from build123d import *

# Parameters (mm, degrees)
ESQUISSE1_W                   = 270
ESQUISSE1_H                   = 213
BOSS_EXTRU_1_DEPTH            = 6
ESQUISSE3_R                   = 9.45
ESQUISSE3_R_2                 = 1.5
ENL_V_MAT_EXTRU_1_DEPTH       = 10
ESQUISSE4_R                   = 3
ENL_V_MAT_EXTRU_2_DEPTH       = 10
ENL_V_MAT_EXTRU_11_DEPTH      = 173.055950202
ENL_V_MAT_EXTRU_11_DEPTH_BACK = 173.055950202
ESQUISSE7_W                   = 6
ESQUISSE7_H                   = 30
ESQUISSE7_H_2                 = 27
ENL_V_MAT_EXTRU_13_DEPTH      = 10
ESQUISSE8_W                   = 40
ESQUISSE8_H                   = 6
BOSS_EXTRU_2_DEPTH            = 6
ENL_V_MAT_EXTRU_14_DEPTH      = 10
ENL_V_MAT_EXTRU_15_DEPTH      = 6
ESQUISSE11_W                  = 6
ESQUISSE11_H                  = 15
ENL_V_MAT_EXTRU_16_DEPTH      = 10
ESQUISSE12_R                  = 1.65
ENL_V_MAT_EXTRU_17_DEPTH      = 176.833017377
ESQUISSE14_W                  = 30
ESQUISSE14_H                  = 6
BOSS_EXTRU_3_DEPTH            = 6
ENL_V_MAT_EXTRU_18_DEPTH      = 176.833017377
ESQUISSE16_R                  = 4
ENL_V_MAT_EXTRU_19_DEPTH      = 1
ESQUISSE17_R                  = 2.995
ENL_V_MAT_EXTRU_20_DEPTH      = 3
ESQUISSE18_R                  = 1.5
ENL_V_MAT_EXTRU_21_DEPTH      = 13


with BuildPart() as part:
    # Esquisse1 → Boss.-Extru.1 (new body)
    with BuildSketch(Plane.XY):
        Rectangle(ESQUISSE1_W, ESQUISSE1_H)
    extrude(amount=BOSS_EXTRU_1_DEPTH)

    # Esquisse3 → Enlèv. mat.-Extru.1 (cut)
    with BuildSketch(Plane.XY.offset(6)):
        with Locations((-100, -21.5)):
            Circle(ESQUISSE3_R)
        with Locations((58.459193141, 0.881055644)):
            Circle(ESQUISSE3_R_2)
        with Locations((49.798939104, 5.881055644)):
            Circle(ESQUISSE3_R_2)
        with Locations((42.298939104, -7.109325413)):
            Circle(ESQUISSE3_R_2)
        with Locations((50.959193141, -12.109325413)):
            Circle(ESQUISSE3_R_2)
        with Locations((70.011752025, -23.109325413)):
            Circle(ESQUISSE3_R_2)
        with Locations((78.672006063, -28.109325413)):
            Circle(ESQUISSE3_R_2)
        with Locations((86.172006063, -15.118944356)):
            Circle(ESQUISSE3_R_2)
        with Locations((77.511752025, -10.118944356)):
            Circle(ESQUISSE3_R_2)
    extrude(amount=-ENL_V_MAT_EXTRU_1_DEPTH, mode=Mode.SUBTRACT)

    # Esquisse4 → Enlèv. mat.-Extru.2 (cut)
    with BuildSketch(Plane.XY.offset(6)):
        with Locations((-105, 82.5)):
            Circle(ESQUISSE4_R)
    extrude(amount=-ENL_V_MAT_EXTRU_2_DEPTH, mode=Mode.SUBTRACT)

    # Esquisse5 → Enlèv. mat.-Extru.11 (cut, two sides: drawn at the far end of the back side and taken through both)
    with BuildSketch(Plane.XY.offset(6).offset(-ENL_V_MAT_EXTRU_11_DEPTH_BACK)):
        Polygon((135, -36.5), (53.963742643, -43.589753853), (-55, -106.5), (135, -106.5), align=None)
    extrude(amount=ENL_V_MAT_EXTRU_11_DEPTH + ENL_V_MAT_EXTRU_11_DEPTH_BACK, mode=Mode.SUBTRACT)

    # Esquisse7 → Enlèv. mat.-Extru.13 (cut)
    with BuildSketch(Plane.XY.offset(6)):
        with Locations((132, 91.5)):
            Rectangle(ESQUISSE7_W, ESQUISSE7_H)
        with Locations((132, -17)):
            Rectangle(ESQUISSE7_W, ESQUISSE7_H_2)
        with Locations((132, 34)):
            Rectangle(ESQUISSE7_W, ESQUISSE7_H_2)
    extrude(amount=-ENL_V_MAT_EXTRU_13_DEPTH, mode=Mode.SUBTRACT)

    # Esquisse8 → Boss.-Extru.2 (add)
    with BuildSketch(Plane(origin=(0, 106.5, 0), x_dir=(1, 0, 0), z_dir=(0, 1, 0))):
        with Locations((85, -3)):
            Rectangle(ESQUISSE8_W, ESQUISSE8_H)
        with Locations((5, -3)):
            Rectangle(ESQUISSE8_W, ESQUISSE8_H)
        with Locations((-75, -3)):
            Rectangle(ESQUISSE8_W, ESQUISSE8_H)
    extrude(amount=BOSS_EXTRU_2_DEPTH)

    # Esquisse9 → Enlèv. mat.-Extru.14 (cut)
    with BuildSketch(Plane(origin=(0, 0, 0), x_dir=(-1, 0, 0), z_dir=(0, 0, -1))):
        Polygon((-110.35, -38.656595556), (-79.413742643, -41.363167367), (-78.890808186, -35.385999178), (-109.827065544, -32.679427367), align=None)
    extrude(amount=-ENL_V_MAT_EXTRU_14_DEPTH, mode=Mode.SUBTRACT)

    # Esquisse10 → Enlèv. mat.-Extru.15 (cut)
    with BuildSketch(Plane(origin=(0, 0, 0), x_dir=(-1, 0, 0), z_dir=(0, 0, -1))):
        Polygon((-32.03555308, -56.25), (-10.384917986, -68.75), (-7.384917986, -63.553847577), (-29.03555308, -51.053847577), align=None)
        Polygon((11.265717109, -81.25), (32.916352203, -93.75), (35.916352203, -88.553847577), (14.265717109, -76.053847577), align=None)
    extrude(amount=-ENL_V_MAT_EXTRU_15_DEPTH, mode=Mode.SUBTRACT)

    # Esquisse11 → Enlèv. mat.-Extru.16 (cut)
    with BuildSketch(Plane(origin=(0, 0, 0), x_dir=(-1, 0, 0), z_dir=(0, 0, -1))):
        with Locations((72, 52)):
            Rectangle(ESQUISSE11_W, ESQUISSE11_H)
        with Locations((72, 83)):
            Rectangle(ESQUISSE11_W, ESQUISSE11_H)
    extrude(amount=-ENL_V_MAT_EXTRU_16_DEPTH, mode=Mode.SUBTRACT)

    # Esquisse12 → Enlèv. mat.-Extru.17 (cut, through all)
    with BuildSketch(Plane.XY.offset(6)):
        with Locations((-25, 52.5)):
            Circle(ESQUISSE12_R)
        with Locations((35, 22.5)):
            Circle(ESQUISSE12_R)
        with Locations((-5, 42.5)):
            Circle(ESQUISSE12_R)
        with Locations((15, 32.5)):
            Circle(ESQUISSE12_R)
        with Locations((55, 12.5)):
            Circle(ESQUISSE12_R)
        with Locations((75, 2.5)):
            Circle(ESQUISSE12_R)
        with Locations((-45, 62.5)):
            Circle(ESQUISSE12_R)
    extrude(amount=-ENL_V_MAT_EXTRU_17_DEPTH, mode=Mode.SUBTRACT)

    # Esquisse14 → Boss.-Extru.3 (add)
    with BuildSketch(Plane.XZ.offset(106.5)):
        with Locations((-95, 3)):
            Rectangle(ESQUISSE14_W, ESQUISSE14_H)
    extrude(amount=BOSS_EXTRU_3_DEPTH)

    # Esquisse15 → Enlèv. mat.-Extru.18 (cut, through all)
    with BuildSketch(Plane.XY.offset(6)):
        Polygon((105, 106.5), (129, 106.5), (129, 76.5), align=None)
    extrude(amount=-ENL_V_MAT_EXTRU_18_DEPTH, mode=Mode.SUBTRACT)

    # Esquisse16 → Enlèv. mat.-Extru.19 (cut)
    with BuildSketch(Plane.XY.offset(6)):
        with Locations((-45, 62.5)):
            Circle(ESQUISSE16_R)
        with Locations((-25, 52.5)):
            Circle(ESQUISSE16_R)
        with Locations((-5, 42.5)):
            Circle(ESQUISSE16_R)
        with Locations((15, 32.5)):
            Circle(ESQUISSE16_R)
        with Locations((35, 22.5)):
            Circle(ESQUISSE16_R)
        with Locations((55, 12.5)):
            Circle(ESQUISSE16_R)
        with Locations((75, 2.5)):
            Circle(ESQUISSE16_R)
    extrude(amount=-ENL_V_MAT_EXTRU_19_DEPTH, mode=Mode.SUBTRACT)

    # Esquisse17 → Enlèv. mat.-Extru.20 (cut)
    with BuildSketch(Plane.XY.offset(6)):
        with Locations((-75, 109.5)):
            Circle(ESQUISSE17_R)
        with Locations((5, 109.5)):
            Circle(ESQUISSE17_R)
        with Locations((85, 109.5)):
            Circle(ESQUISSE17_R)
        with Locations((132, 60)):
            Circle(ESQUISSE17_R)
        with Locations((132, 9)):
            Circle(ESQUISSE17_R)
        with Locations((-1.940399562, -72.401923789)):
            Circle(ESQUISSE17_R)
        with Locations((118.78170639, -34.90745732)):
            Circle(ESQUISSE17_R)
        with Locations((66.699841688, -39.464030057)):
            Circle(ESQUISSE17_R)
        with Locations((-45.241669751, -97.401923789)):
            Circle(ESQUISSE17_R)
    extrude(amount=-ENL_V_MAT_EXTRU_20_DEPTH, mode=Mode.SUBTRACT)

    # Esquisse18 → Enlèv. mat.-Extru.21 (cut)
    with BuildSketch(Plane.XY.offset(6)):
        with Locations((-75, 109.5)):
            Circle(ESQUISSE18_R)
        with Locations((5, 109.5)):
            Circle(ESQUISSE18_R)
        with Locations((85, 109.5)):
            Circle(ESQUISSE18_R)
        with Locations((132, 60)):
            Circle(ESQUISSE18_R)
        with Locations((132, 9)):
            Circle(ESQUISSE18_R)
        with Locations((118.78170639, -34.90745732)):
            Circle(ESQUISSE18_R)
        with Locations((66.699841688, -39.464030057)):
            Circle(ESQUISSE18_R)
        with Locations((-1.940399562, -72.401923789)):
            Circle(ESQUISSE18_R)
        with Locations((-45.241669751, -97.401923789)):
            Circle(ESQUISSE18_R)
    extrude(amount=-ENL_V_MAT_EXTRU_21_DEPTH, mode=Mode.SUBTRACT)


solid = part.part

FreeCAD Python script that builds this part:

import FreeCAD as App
import Part
import Sketcher
from FreeCAD import Vector
Q = App.Units.Quantity


def add_polygon(sketch, points):
    """Adds a closed chain of lines whose ends are joined by coincident constraints."""
    first, n = sketch.GeometryCount, len(points)
    for a, b in zip(points, points[1:] + points[:1]):
        sketch.addGeometry(Part.LineSegment(App.Vector(*a, 0), App.Vector(*b, 0)), False)
    for i in range(n):
        sketch.addConstraint(Sketcher.Constraint("Coincident", first + i, 2, first + (i + 1) % n, 1))

doc = App.newDocument("Part")
params = doc.addObject("Spreadsheet::Sheet", "Params")
for row, (alias, value) in enumerate([
    ("sketch1_width", "270 mm"),
    ("sketch1_height", "213 mm"),
    ("pad1_length", "6 mm"),
    ("sketch2_diameter", "3 mm"),
    ("sketch2_diameter2", "18.9 mm"),
    ("pocket1_length", "10 mm"),
    ("sketch3_diameter", "6 mm"),
    ("pocket2_length", "10 mm"),
    ("sketch4_width", "190 mm"),
    ("sketch4_height", "70 mm"),
    ("sketch5_width", "6 mm"),
    ("sketch5_height", "30 mm"),
    ("sketch5_height2", "27 mm"),
    ("pocket4_length", "10 mm"),
    ("sketch6_width", "40 mm"),
    ("sketch6_height", "6 mm"),
    ("pad2_length", "6 mm"),
    ("sketch7_length", "6 mm"),
    ("pocket5_length", "10 mm"),
    ("sketch8_length", "25 mm"),
    ("sketch8_length2", "6 mm"),
    ("pocket6_length", "6 mm"),
    ("sketch9_width", "6 mm"),
    ("sketch9_height", "15 mm"),
    ("pocket7_length", "10 mm"),
    ("sketch10_diameter", "3.3 mm"),
    ("sketch11_width", "30 mm"),
    ("sketch11_height", "6 mm"),
    ("pad3_length", "6 mm"),
    ("sketch12_width", "24 mm"),
    ("sketch12_height", "30 mm"),
    ("sketch13_diameter", "8 mm"),
    ("pocket10_length", "1 mm"),
    ("sketch14_diameter", "5.99 mm"),
    ("pocket11_length", "3 mm"),
    ("sketch15_diameter", "3 mm"),
    ("pocket12_length", "13 mm"),
], start=1):
    params.set(f"A{row}", alias)
    params.set(f"B{row}", "=" + value)
    params.setAlias(f"B{row}", alias)

body = doc.addObject("PartDesign::Body", "Body")

sketch1 = body.newObject("Sketcher::SketchObject", "Sketch")
sketch1.AttachmentSupport = (doc.getObject("XY_Plane"), [""])
sketch1.MapMode = "FlatFace"
add_polygon(sketch1, [(-135, 106), (-135, -106), (135, -106), (135, 106)])
sketch1.addConstraint(Sketcher.Constraint("Vertical", 0))
sketch1.addConstraint(Sketcher.Constraint("Horizontal", 1))
sketch1.addConstraint(Sketcher.Constraint("Vertical", 2))
sketch1.addConstraint(Sketcher.Constraint("Horizontal", 3))
sketch1.addConstraint(Sketcher.Constraint("Symmetric", 0, 2, 2, 2, -1, 1))
sketch1.addConstraint(Sketcher.Constraint("DistanceX", 1, 1, 1, 2, Q("270 mm")))
sketch1.addConstraint(Sketcher.Constraint("DistanceY", 0, 2, 0, 1, Q("213 mm")))
sketch1.setExpression("Constraints[9]", "Params.sketch1_width")
sketch1.setExpression("Constraints[10]", "Params.sketch1_height")
pad1 = body.newObject("PartDesign::Pad", "Pad")
pad1.Profile = sketch1
pad1.setExpression("Length", "Params.pad1_length")

sketch2 = body.newObject("Sketcher::SketchObject", "Sketch001")
sketch2.AttachmentSupport = (doc.getObject("XY_Plane"), [""])
sketch2.MapMode = "FlatFace"
sketch2.AttachmentOffset = App.Placement(Vector(0, 0, 6), App.Rotation())
sketch2.addGeometry(Part.Circle(Vector(-100, -21.5, 0), Vector(0, 0, 1), 9.4), False)
sketch2.addGeometry(Part.Circle(Vector(58.5, 0.9, 0), Vector(0, 0, 1), 1.5), False)
sketch2.addGeometry(Part.Circle(Vector(49.8, 5.9, 0), Vector(0, 0, 1), 1.5), False)
sketch2.addGeometry(Part.Circle(Vector(42.3, -7.1, 0), Vector(0, 0, 1), 1.5), False)
sketch2.addGeometry(Part.Circle(Vector(51, -12.1, 0), Vector(0, 0, 1), 1.5), False)
sketch2.addGeometry(Part.Circle(Vector(70, -23.1, 0), Vector(0, 0, 1), 1.5), False)
sketch2.addGeometry(Part.Circle(Vector(78.7, -28.1, 0), Vector(0, 0, 1), 1.5), False)
sketch2.addGeometry(Part.Circle(Vector(86.2, -15.1, 0), Vector(0, 0, 1), 1.5), False)
sketch2.addGeometry(Part.Circle(Vector(77.5, -10.1, 0), Vector(0, 0, 1), 1.5), False)
sketch2.addConstraint(Sketcher.Constraint("Equal", 1, 2))
sketch2.addConstraint(Sketcher.Constraint("Equal", 2, 3))
sketch2.addConstraint(Sketcher.Constraint("Equal", 3, 4))
sketch2.addConstraint(Sketcher.Constraint("Equal", 4, 5))
sketch2.addConstraint(Sketcher.Constraint("Equal", 5, 6))
sketch2.addConstraint(Sketcher.Constraint("Equal", 6, 7))
sketch2.addConstraint(Sketcher.Constraint("Equal", 7, 8))
sketch2.addConstraint(Sketcher.Constraint("Diameter", 1, Q("3 mm")))
sketch2.addConstraint(Sketcher.Constraint("Diameter", 0, Q("18.9 mm")))
sketch2.addConstraint(Sketcher.Constraint("DistanceX", 0, 3, -1, 1, Q("100 mm")))
sketch2.addConstraint(Sketcher.Constraint("DistanceY", 1, 3, 2, 3, Q("5 mm")))
sketch2.addConstraint(Sketcher.Constraint("DistanceY", 4, 3, 3, 3, Q("5 mm")))
sketch2.addConstraint(Sketcher.Constraint("DistanceY", 5, 3, 4, 3, Q("11 mm")))
sketch2.addConstraint(Sketcher.Constraint("DistanceY", 6, 3, 5, 3, Q("5 mm")))
sketch2.addConstraint(Sketcher.Constraint("DistanceY", 7, 3, 1, 3, Q("16 mm")))
sketch2.addConstraint(Sketcher.Constraint("DistanceY", 7, 3, 8, 3, Q("5 mm")))
sketch2.addConstraint(Sketcher.Constraint("DistanceY", 0, 3, -1, 1, Q("21.5 mm")))
sketch2.addConstraint(Sketcher.Constraint("DistanceX", 3, 3, 2, 3, Q("7.5 mm")))
sketch2.addConstraint(Sketcher.Constraint("DistanceX", 4, 3, 1, 3, Q("7.5 mm")))
sketch2.addConstraint(Sketcher.Constraint("DistanceX", 6, 3, 7, 3, Q("7.5 mm")))
sketch2.addConstraint(Sketcher.Constraint("DistanceX", 5, 3, 8, 3, Q("7.5 mm")))
sketch2.addConstraint(Sketcher.Constraint("DistanceX", -1, 1, 2, 3, Q("49.798939 mm")))
sketch2.addConstraint(Sketcher.Constraint("DistanceY", 3, 3, 2, 3, Q("12.990381 mm")))
sketch2.addConstraint(Sketcher.Constraint("DistanceX", 4, 3, 5, 3, Q("19.052559 mm")))
sketch2.addConstraint(Sketcher.Constraint("DistanceX", -1, 1, 1, 3, Q("58.459193 mm")))
sketch2.addConstraint(Sketcher.Constraint("DistanceY", -1, 1, 1, 3, Q("0.881056 mm")))
sketch2.addConstraint(Sketcher.Constraint("DistanceX", -1, 1, 6, 3, Q("78.672006 mm")))
sketch2.setExpression("Constraints[7]", "Params.sketch2_diameter")
sketch2.setExpression("Constraints[8]", "Params.sketch2_diameter2")
pocket1 = body.newObject("PartDesign::Pocket", "Pocket")
pocket1.Profile = sketch2
pocket1.setExpression("Length", "Params.pocket1_length")

sketch3 = body.newObject("Sketcher::SketchObject", "Sketch002")
sketch3.AttachmentSupport = (doc.getObject("XY_Plane"), [""])
sketch3.MapMode = "FlatFace"
sketch3.AttachmentOffset = App.Placement(Vector(0, 0, 6), App.Rotation())
sketch3.addGeometry(Part.Circle(Vector(-105, 82.5, 0), Vector(0, 0, 1), 3), False)
sketch3.addConstraint(Sketcher.Constraint("Diameter", 0, Q("6 mm")))
sketch3.addConstraint(Sketcher.Constraint("DistanceX", 0, 3, -1, 1, Q("105 mm")))
sketch3.addConstraint(Sketcher.Constraint("DistanceY", -1, 1, 0, 3, Q("82.5 mm")))
sketch3.setExpression("Constraints[0]", "Params.sketch3_diameter")
pocket2 = body.newObject("PartDesign::Pocket", "Pocket001")
pocket2.Profile = sketch3
pocket2.setExpression("Length", "Params.pocket2_length")

sketch4 = body.newObject("Sketcher::SketchObject", "Sketch003")
sketch4.AttachmentSupport = (doc.getObject("XY_Plane"), [""])
sketch4.MapMode = "FlatFace"
sketch4.AttachmentOffset = App.Placement(Vector(0, 0, 6), App.Rotation())
add_polygon(sketch4, [(135, -36), (54, -44), (-55, -106), (135, -106)])
sketch4.addConstraint(Sketcher.Constraint("Horizontal", 2))
sketch4.addConstraint(Sketcher.Constraint("Vertical", 3))
sketch4.addConstraint(Sketcher.Constraint("DistanceX", 2, 1, 2, 2, Q("190 mm")))
sketch4.addConstraint(Sketcher.Constraint("DistanceY", 3, 1, 3, 2, Q("70 mm")))
sketch4.addConstraint(Sketcher.Constraint("Angle", 0, Q("-175 deg")))
sketch4.addConstraint(Sketcher.Constraint("Angle", 1, Q("-150 deg")))
sketch4.addConstraint(Sketcher.Constraint("DistanceX", 1, 2, -1, 1, Q("55 mm")))
sketch4.addConstraint(Sketcher.Constraint("DistanceY", 1, 2, -1, 1, Q("106.5 mm")))
sketch4.setExpression("Constraints[6]", "Params.sketch4_width")
sketch4.setExpression("Constraints[7]", "Params.sketch4_height")
pocket3 = body.newObject("PartDesign::Pocket", "Pocket002")
pocket3.Profile = sketch4
pocket3.Type = "ThroughAll"
pocket3.Midplane = True

sketch5 = body.newObject("Sketcher::SketchObject", "Sketch004")
sketch5.AttachmentSupport = (doc.getObject("XY_Plane"), [""])
sketch5.MapMode = "FlatFace"
sketch5.AttachmentOffset = App.Placement(Vector(0, 0, 6), App.Rotation())
add_polygon(sketch5, [(129, 106), (129, 76), (135, 76), (135, 106)])
add_polygon(sketch5, [(129, -4), (129, -30), (135, -30), (135, -4)])
add_polygon(sketch5, [(129, 48), (129, 20), (135, 20), (135, 48)])
sketch5.addConstraint(Sketcher.Constraint("Vertical", 0))
sketch5.addConstraint(Sketcher.Constraint("Horizontal", 1))
sketch5.addConstraint(Sketcher.Constraint("Vertical", 2))
sketch5.addConstraint(Sketcher.Constraint("Horizontal", 3))
sketch5.addConstraint(Sketcher.Constraint("Vertical", 4))
sketch5.addConstraint(Sketcher.Constraint("Horizontal", 5))
sketch5.addConstraint(Sketcher.Constraint("Vertical", 6))
sketch5.addConstraint(Sketcher.Constraint("Horizontal", 7))
sketch5.addConstraint(Sketcher.Constraint("Vertical", 8))
sketch5.addConstraint(Sketcher.Constraint("Horizontal", 9))
sketch5.addConstraint(Sketcher.Constraint("Vertical", 10))
sketch5.addConstraint(Sketcher.Constraint("Horizontal", 11))
sketch5.addConstraint(Sketcher.Constraint("Vertical", 3, 2, 4, 2))
sketch5.addConstraint(Sketcher.Constraint("Vertical", 2, 2, 5, 2))
sketch5.addConstraint(Sketcher.Constraint("Vertical", 7, 2, 8, 2))
sketch5.addConstraint(Sketcher.Constraint("Vertical", 6, 2, 9, 2))
sketch5.addConstraint(Sketcher.Constraint("Equal", 6, 8))
sketch5.addConstraint(Sketcher.Constraint("DistanceX", 1, 1, 1, 2, Q("6 mm")))
sketch5.addConstraint(Sketcher.Constraint("DistanceY", 0, 2, 0, 1, Q("30 mm")))
sketch5.addConstraint(Sketcher.Constraint("DistanceY", 4, 2, 4, 1, Q("27 mm")))
sketch5.addConstraint(Sketcher.Constraint("DistanceX", -1, 1, 0, 2, Q("129 mm")))
sketch5.addConstraint(Sketcher.Constraint("DistanceY", 4, 2, 0, 2, Q("107 mm")))
sketch5.addConstraint(Sketcher.Constraint("DistanceY", 7, 2, 8, 2, Q("24 mm")))
sketch5.addConstraint(Sketcher.Constraint("DistanceY", -1, 1, 0, 2, Q("76.5 mm")))
sketch5.setExpression("Constraints[29]", "Params.sketch5_width")
sketch5.setExpression("Constraints[30]", "Params.sketch5_height")
sketch5.setExpression("Constraints[31]", "Params.sketch5_height2")
pocket4 = body.newObject("PartDesign::Pocket", "Pocket003")
pocket4.Profile = sketch5
pocket4.setExpression("Length", "Params.pocket4_length")

sketch6 = body.newObject("Sketcher::SketchObject", "Sketch005")
sketch6.AttachmentSupport = (doc.getObject("XZ_Plane"), [""])
sketch6.MapMode = "FlatFace"
sketch6.AttachmentOffset = App.Placement(Vector(0, 0, -106.5), App.Rotation())
add_polygon(sketch6, [(65, 0), (65, 6), (105, 6), (105, 0)])
add_polygon(sketch6, [(-15, 0), (-15, 6), (25, 6), (25, 0)])
add_polygon(sketch6, [(-95, 0), (-95, 6), (-55, 6), (-55, 0)])
sketch6.addConstraint(Sketcher.Constraint("Vertical", 0))
sketch6.addConstraint(Sketcher.Constraint("Horizontal", 1))
sketch6.addConstraint(Sketcher.Constraint("Vertical", 2))
sketch6.addConstraint(Sketcher.Constraint("Horizontal", 3))
sketch6.addConstraint(Sketcher.Constraint("Vertical", 4))
sketch6.addConstraint(Sketcher.Constraint("Horizontal", 5))
sketch6.addConstraint(Sketcher.Constraint("Vertical", 6))
sketch6.addConstraint(Sketcher.Constraint("Horizontal", 7))
sketch6.addConstraint(Sketcher.Constraint("Vertical", 8))
sketch6.addConstraint(Sketcher.Constraint("Horizontal", 9))
sketch6.addConstraint(Sketcher.Constraint("Vertical", 10))
sketch6.addConstraint(Sketcher.Constraint("Horizontal", 11))
sketch6.addConstraint(Sketcher.Constraint("PointOnObject", 2, 2, -1))
sketch6.addConstraint(Sketcher.Constraint("PointOnObject", 6, 2, -1))
sketch6.addConstraint(Sketcher.Constraint("PointOnObject", 10, 2, -1))
sketch6.addConstraint(Sketcher.Constraint("Horizontal", 1, 2, 4, 2))
sketch6.addConstraint(Sketcher.Constraint("Horizontal", 5, 2, 8, 2))
sketch6.addConstraint(Sketcher.Constraint("Equal", 3, 5))
sketch6.addConstraint(Sketcher.Constraint("Equal", 7, 9))
sketch6.addConstraint(Sketcher.Constraint("DistanceX", 1, 1, 1, 2, Q("40 mm")))
sketch6.addConstraint(Sketcher.Constraint("DistanceY", 0, 1, 0, 2, Q("6 mm")))
sketch6.addConstraint(Sketcher.Constraint("DistanceX", -1, 1, 0, 2, Q("65 mm")))
sketch6.addConstraint(Sketcher.Constraint("DistanceX", 4, 2, -1, 1, Q("15 mm")))
sketch6.addConstraint(Sketcher.Constraint("DistanceX", 8, 2, -1, 1, Q("95 mm")))
sketch6.setExpression("Constraints[31]", "Params.sketch6_width")
sketch6.setExpression("Constraints[32]", "Params.sketch6_height")
pad2 = body.newObject("PartDesign::Pad", "Pad001")
pad2.Profile = sketch6
pad2.setExpression("Length", "Params.pad2_length")
pad2.Reversed = True

sketch7 = body.newObject("Sketcher::SketchObject", "Sketch006")
sketch7.AttachmentSupport = (doc.getObject("XY_Plane"), [""])
sketch7.MapMode = "FlatFace"
add_polygon(sketch7, [(110, -39), (79, -41), (79, -35), (110, -33)])
sketch7.addConstraint(Sketcher.Constraint("Perpendicular", 0, 1))
sketch7.addConstraint(Sketcher.Constraint("Perpendicular", 1, 2))
sketch7.addConstraint(Sketcher.Constraint("Perpendicular", 2, 3))
sketch7.addConstraint(Sketcher.Constraint("Angle", 0, Q("-175 deg")))
sketch7.addConstraint(Sketcher.Constraint("Distance", 1, Q("6 mm")))
sketch7.addConstraint(Sketcher.Constraint("DistanceX", -1, 1, 3, 2, Q("110.35 mm")))
sketch7.addConstraint(Sketcher.Constraint("DistanceY", 1, 2, -1, 1, Q("35.385999 mm")))
sketch7.addConstraint(Sketcher.Constraint("Distance", 0, Q("31.054429 mm")))
sketch7.setExpression("Constraints[8]", "Params.sketch7_length")
pocket5 = body.newObject("PartDesign::Pocket", "Pocket004")
pocket5.Profile = sketch7
pocket5.setExpression("Length", "Params.pocket5_length")
pocket5.Reversed = True

sketch8 = body.newObject("Sketcher::SketchObject", "Sketch007")
sketch8.AttachmentSupport = (doc.getObject("XY_Plane"), [""])
sketch8.MapMode = "FlatFace"
add_polygon(sketch8, [(32, -56), (10, -69), (7, -64), (29, -51)])
add_polygon(sketch8, [(-11, -81), (-33, -94), (-36, -89), (-14, -76)])
sketch8.addConstraint(Sketcher.Constraint("Perpendicular", 0, 1))
sketch8.addConstraint(Sketcher.Constraint("Perpendicular", 1, 2))
sketch8.addConstraint(Sketcher.Constraint("Perpendicular", 2, 3))
sketch8.addConstraint(Sketcher.Constraint("Perpendicular", 3, 4))
sketch8.addConstraint(Sketcher.Constraint("Perpendicular", 4, 5))
sketch8.addConstraint(Sketcher.Constraint("Perpendicular", 5, 6))
sketch8.addConstraint(Sketcher.Constraint("Perpendicular", 6, 7))
sketch8.addConstraint(Sketcher.Constraint("Equal", 2, 4))
sketch8.addConstraint(Sketcher.Constraint("Equal", 3, 5))
sketch8.addConstraint(Sketcher.Constraint("Angle", 0, Q("-150 deg")))
sketch8.addConstraint(Sketcher.Constraint("Distance", 0, Q("25 mm")))
sketch8.addConstraint(Sketcher.Constraint("Distance", 1, Q("6 mm")))
sketch8.addConstraint(Sketcher.Constraint("DistanceY", 4, 2, 0, 2, Q("25 mm")))
sketch8.addConstraint(Sketcher.Constraint("DistanceY", 0, 2, -1, 1, Q("68.75 mm")))
sketch8.addConstraint(Sketcher.Constraint("DistanceX", 4, 2, 0, 2, Q("43.30127 mm")))
sketch8.addConstraint(Sketcher.Constraint("DistanceX", -1, 1, 0, 2, Q("10.384918 mm")))
sketch8.setExpression("Constraints[18]", "Params.sketch8_length")
sketch8.setExpression("Constraints[19]", "Params.sketch8_length2")
pocket6 = body.newObject("PartDesign::Pocket", "Pocket005")
pocket6.Profile = sketch8
pocket6.setExpression("Length", "Params.pocket6_length")
pocket6.Reversed = True

sketch9 = body.newObject("Sketcher::SketchObject", "Sketch008")
sketch9.AttachmentSupport = (doc.getObject("XY_Plane"), [""])
sketch9.MapMode = "FlatFace"
add_polygon(sketch9, [(-69, 60), (-69, 44), (-75, 44), (-75, 60)])
add_polygon(sketch9, [(-69, 90), (-69, 76), (-75, 76), (-75, 90)])
sketch9.addConstraint(Sketcher.Constraint("Vertical", 0))
sketch9.addConstraint(Sketcher.Constraint("Horizontal", 1))
sketch9.addConstraint(Sketcher.Constraint("Vertical", 2))
sketch9.addConstraint(Sketcher.Constraint("Horizontal", 3))
sketch9.addConstraint(Sketcher.Constraint("Vertical", 4))
sketch9.addConstraint(Sketcher.Constraint("Horizontal", 5))
sketch9.addConstraint(Sketcher.Constraint("Vertical", 6))
sketch9.addConstraint(Sketcher.Constraint("Horizontal", 7))
sketch9.addConstraint(Sketcher.Constraint("Vertical", 3, 2, 4, 2))
sketch9.addConstraint(Sketcher.Constraint("Vertical", 2, 2, 5, 2))
sketch9.addConstraint(Sketcher.Constraint("Equal", 2, 4))
sketch9.addConstraint(Sketcher.Constraint("DistanceX", 1, 2, 1, 1, Q("6 mm")))
sketch9.addConstraint(Sketcher.Constraint("DistanceY", 0, 2, 0, 1, Q("15 mm")))
sketch9.addConstraint(Sketcher.Constraint("DistanceX", 0, 2, -1, 1, Q("69 mm")))
sketch9.addConstraint(Sketcher.Constraint("DistanceY", 3, 2, 4, 2, Q("16 mm")))
sketch9.addConstraint(Sketcher.Constraint("DistanceY", -1, 1, 0, 2, Q("44.5 mm")))
sketch9.setExpression("Constraints[19]", "Params.sketch9_width")
sketch9.setExpression("Constraints[20]", "Params.sketch9_height")
pocket7 = body.newObject("PartDesign::Pocket", "Pocket006")
pocket7.Profile = sketch9
pocket7.setExpression("Length", "Params.pocket7_length")
pocket7.Reversed = True

sketch10 = body.newObject("Sketcher::SketchObject", "Sketch009")
sketch10.AttachmentSupport = (doc.getObject("XY_Plane"), [""])
sketch10.MapMode = "FlatFace"
sketch10.AttachmentOffset = App.Placement(Vector(0, 0, 6), App.Rotation())
sketch10.addGeometry(Part.Circle(Vector(-25, 52.5, 0), Vector(0, 0, 1), 1.6), False)
sketch10.addGeometry(Part.Circle(Vector(35, 22.5, 0), Vector(0, 0, 1), 1.6), False)
sketch10.addGeometry(Part.Circle(Vector(-5, 42.5, 0), Vector(0, 0, 1), 1.6), False)
sketch10.addGeometry(Part.Circle(Vector(15, 32.5, 0), Vector(0, 0, 1), 1.6), False)
sketch10.addGeometry(Part.Circle(Vector(55, 12.5, 0), Vector(0, 0, 1), 1.6), False)
sketch10.addGeometry(Part.Circle(Vector(75, 2.5, 0), Vector(0, 0, 1), 1.6), False)
sketch10.addGeometry(Part.Circle(Vector(-45, 62.5, 0), Vector(0, 0, 1), 1.6), False)
sketch10.addConstraint(Sketcher.Constraint("Equal", 0, 1))
sketch10.addConstraint(Sketcher.Constraint("Equal", 1, 2))
sketch10.addConstraint(Sketcher.Constraint("Equal", 2, 3))
sketch10.addConstraint(Sketcher.Constraint("Equal", 3, 4))
sketch10.addConstraint(Sketcher.Constraint("Equal", 4, 5))
sketch10.addConstraint(Sketcher.Constraint("Equal", 5, 6))
sketch10.addConstraint(Sketcher.Constraint("Diameter", 0, Q("3.3 mm")))
sketch10.addConstraint(Sketcher.Constraint("DistanceX", 0, 3, -1, 1, Q("25 mm")))
sketch10.addConstraint(Sketcher.Constraint("DistanceX", -1, 1, 1, 3, Q("35 mm")))
sketch10.addConstraint(Sketcher.Constraint("DistanceX", 2, 3, -1, 1, Q("5 mm")))
sketch10.addConstraint(Sketcher.Constraint("DistanceX", -1, 1, 3, 3, Q("15 mm")))
sketch10.addConstraint(Sketcher.Constraint("DistanceX", -1, 1, 4, 3, Q("55 mm")))
sketch10.addConstraint(Sketcher.Constraint("DistanceX", -1, 1, 5, 3, Q("75 mm")))
sketch10.addConstraint(Sketcher.Constraint("DistanceX", 6, 3, -1, 1, Q("45 mm")))
sketch10.addConstraint(Sketcher.Constraint("DistanceY", 1, 3, 0, 3, Q("30 mm")))
sketch10.addConstraint(Sketcher.Constraint("DistanceY", 2, 3, 0, 3, Q("10 mm")))
sketch10.addConstraint(Sketcher.Constraint("DistanceY", 1, 3, 3, 3, Q("10 mm")))
sketch10.addConstraint(Sketcher.Constraint("DistanceY", 4, 3, 1, 3, Q("10 mm")))
sketch10.addConstraint(Sketcher.Constraint("DistanceY", 5, 3, 4, 3, Q("10 mm")))
sketch10.addConstraint(Sketcher.Constraint("DistanceY", 0, 3, 6, 3, Q("10 mm")))
sketch10.addConstraint(Sketcher.Constraint("DistanceY", -1, 1, 0, 3, Q("52.5 mm")))
sketch10.setExpression("Constraints[6]", "Params.sketch10_diameter")
pocket8 = body.newObject("PartDesign::Pocket", "Pocket007")
pocket8.Profile = sketch10
pocket8.Type = "ThroughAll"

sketch11 = body.newObject("Sketcher::SketchObject", "Sketch010")
sketch11.AttachmentSupport = (doc.getObject("XZ_Plane"), [""])
sketch11.MapMode = "FlatFace"
sketch11.AttachmentOffset = App.Placement(Vector(0, 0, 106.5), App.Rotation())
add_polygon(sketch11, [(-110, 6), (-110, 0), (-80, 0), (-80, 6)])
sketch11.addConstraint(Sketcher.Constraint("Vertical", 0))
sketch11.addConstraint(Sketcher.Constraint("Horizontal", 1))
sketch11.addConstraint(Sketcher.Constraint("Vertical", 2))
sketch11.addConstraint(Sketcher.Constraint("Horizontal", 3))
sketch11.addConstraint(Sketcher.Constraint("PointOnObject", 0, 2, -1))
sketch11.addConstraint(Sketcher.Constraint("DistanceX", 1, 1, 1, 2, Q("30 mm")))
sketch11.addConstraint(Sketcher.Constraint("DistanceY", 0, 2, 0, 1, Q("6 mm")))
sketch11.addConstraint(Sketcher.Constraint("DistanceX", 0, 2, -1, 1, Q("110 mm")))
sketch11.setExpression("Constraints[9]", "Params.sketch11_width")
sketch11.setExpression("Constraints[10]", "Params.sketch11_height")
pad3 = body.newObject("PartDesign::Pad", "Pad002")
pad3.Profile = sketch11
pad3.setExpression("Length", "Params.pad3_length")

sketch12 = body.newObject("Sketcher::SketchObject", "Sketch011")
sketch12.AttachmentSupport = (doc.getObject("XY_Plane"), [""])
sketch12.MapMode = "FlatFace"
sketch12.AttachmentOffset = App.Placement(Vector(0, 0, 6), App.Rotation())
add_polygon(sketch12, [(129, 106), (105, 106), (129, 76)])
sketch12.addConstraint(Sketcher.Constraint("Horizontal", 0))
sketch12.addConstraint(Sketcher.Constraint("Vertical", 2))
sketch12.addConstraint(Sketcher.Constraint("DistanceX", 0, 2, 0, 1, Q("24 mm")))
sketch12.addConstraint(Sketcher.Constraint("DistanceY", 2, 1, 2, 2, Q("30 mm")))
sketch12.addConstraint(Sketcher.Constraint("DistanceX", -1, 1, 0, 2, Q("105 mm")))
sketch12.addConstraint(Sketcher.Constraint("DistanceY", -1, 1, 0, 2, Q("106.5 mm")))
sketch12.setExpression("Constraints[5]", "Params.sketch12_width")
sketch12.setExpression("Constraints[6]", "Params.sketch12_height")
pocket9 = body.newObject("PartDesign::Pocket", "Pocket008")
pocket9.Profile = sketch12
pocket9.Type = "ThroughAll"

sketch13 = body.newObject("Sketcher::SketchObject", "Sketch012")
sketch13.AttachmentSupport = (doc.getObject("XY_Plane"), [""])
sketch13.MapMode = "FlatFace"
sketch13.AttachmentOffset = App.Placement(Vector(0, 0, 6), App.Rotation())
sketch13.addGeometry(Part.Circle(Vector(-45, 62.5, 0), Vector(0, 0, 1), 4), False)
sketch13.addGeometry(Part.Circle(Vector(-25, 52.5, 0), Vector(0, 0, 1), 4), False)
sketch13.addGeometry(Part.Circle(Vector(-5, 42.5, 0), Vector(0, 0, 1), 4), False)
sketch13.addGeometry(Part.Circle(Vector(15, 32.5, 0), Vector(0, 0, 1), 4), False)
sketch13.addGeometry(Part.Circle(Vector(35, 22.5, 0), Vector(0, 0, 1), 4), False)
sketch13.addGeometry(Part.Circle(Vector(55, 12.5, 0), Vector(0, 0, 1), 4), False)
sketch13.addGeometry(Part.Circle(Vector(75, 2.5, 0), Vector(0, 0, 1), 4), False)
sketch13.addConstraint(Sketcher.Constraint("Equal", 0, 1))
sketch13.addConstraint(Sketcher.Constraint("Equal", 1, 2))
sketch13.addConstraint(Sketcher.Constraint("Equal", 2, 3))
sketch13.addConstraint(Sketcher.Constraint("Equal", 3, 4))
sketch13.addConstraint(Sketcher.Constraint("Equal", 4, 5))
sketch13.addConstraint(Sketcher.Constraint("Equal", 5, 6))
sketch13.addConstraint(Sketcher.Constraint("Diameter", 0, Q("8 mm")))
sketch13.addConstraint(Sketcher.Constraint("DistanceX", 0, 3, -1, 1, Q("45 mm")))
sketch13.addConstraint(Sketcher.Constraint("DistanceX", 1, 3, -1, 1, Q("25 mm")))
sketch13.addConstraint(Sketcher.Constraint("DistanceX", 2, 3, -1, 1, Q("5 mm")))
sketch13.addConstraint(Sketcher.Constraint("DistanceX", -1, 1, 3, 3, Q("15 mm")))
sketch13.addConstraint(Sketcher.Constraint("DistanceX", -1, 1, 4, 3, Q("35 mm")))
sketch13.addConstraint(Sketcher.Constraint("DistanceX", -1, 1, 5, 3, Q("55 mm")))
sketch13.addConstraint(Sketcher.Constraint("DistanceX", -1, 1, 6, 3, Q("75 mm")))
sketch13.addConstraint(Sketcher.Constraint("DistanceY", 1, 3, 0, 3, Q("10 mm")))
sketch13.addConstraint(Sketcher.Constraint("DistanceY", 2, 3, 1, 3, Q("10 mm")))
sketch13.addConstraint(Sketcher.Constraint("DistanceY", 3, 3, 2, 3, Q("10 mm")))
sketch13.addConstraint(Sketcher.Constraint("DistanceY", 4, 3, 3, 3, Q("10 mm")))
sketch13.addConstraint(Sketcher.Constraint("DistanceY", 5, 3, 4, 3, Q("10 mm")))
sketch13.addConstraint(Sketcher.Constraint("DistanceY", 6, 3, 5, 3, Q("10 mm")))
sketch13.addConstraint(Sketcher.Constraint("DistanceY", -1, 1, 0, 3, Q("62.5 mm")))
sketch13.setExpression("Constraints[6]", "Params.sketch13_diameter")
pocket10 = body.newObject("PartDesign::Pocket", "Pocket009")
pocket10.Profile = sketch13
pocket10.setExpression("Length", "Params.pocket10_length")

sketch14 = body.newObject("Sketcher::SketchObject", "Sketch013")
sketch14.AttachmentSupport = (doc.getObject("XY_Plane"), [""])
sketch14.MapMode = "FlatFace"
sketch14.AttachmentOffset = App.Placement(Vector(0, 0, 6), App.Rotation())
sketch14.addGeometry(Part.Circle(Vector(-75, 109.5, 0), Vector(0, 0, 1), 3), False)
sketch14.addGeometry(Part.Circle(Vector(5, 109.5, 0), Vector(0, 0, 1), 3), False)
sketch14.addGeometry(Part.Circle(Vector(85, 109.5, 0), Vector(0, 0, 1), 3), False)
sketch14.addGeometry(Part.Circle(Vector(132, 60, 0), Vector(0, 0, 1), 3), False)
sketch14.addGeometry(Part.Circle(Vector(132, 9, 0), Vector(0, 0, 1), 3), False)
sketch14.addGeometry(Part.Circle(Vector(-1.9, -72.4, 0), Vector(0, 0, 1), 3), False)
sketch14.addGeometry(Part.Circle(Vector(118.8, -34.9, 0), Vector(0, 0, 1), 3), False)
sketch14.addGeometry(Part.Circle(Vector(66.7, -39.5, 0), Vector(0, 0, 1), 3), False)
sketch14.addGeometry(Part.Circle(Vector(-45.2, -97.4, 0), Vector(0, 0, 1), 3), False)
sketch14.addConstraint(Sketcher.Constraint("Equal", 0, 1))
sketch14.addConstraint(Sketcher.Constraint("Equal", 1, 2))
sketch14.addConstraint(Sketcher.Constraint("Equal", 2, 3))
sketch14.addConstraint(Sketcher.Constraint("Equal", 3, 4))
sketch14.addConstraint(Sketcher.Constraint("Equal", 4, 5))
sketch14.addConstraint(Sketcher.Constraint("Equal", 5, 6))
sketch14.addConstraint(Sketcher.Constraint("Equal", 6, 7))
sketch14.addConstraint(Sketcher.Constraint("Equal", 7, 8))
sketch14.addConstraint(Sketcher.Constraint("Horizontal", 0, 3, 1, 3))
sketch14.addConstraint(Sketcher.Constraint("Horizontal", 1, 3, 2, 3))
sketch14.addConstraint(Sketcher.Constraint("Vertical", 3, 3, 4, 3))
sketch14.addConstraint(Sketcher.Constraint("Diameter", 0, Q("5.99 mm")))
sketch14.addConstraint(Sketcher.Constraint("DistanceX", 0, 3, -1, 1, Q("75 mm")))
sketch14.addConstraint(Sketcher.Constraint("DistanceX", -1, 1, 1, 3, Q("5 mm")))
sketch14.addConstraint(Sketcher.Constraint("DistanceX", -1, 1, 2, 3, Q("85 mm")))
sketch14.addConstraint(Sketcher.Constraint("DistanceX", -1, 1, 3, 3, Q("132 mm")))
sketch14.addConstraint(Sketcher.Constraint("DistanceY", -1, 1, 3, 3, Q("60 mm")))
sketch14.addConstraint(Sketcher.Constraint("DistanceY", -1, 1, 4, 3, Q("9 mm")))
sketch14.addConstraint(Sketcher.Constraint("DistanceY", 8, 3, 5, 3, Q("25 mm")))
sketch14.addConstraint(Sketcher.Constraint("DistanceY", -1, 1, 0, 3, Q("109.5 mm")))
sketch14.addConstraint(Sketcher.Constraint("DistanceX", 5, 3, -1, 1, Q("1.9404 mm")))
sketch14.addConstraint(Sketcher.Constraint("DistanceX", -1, 1, 7, 3, Q("66.699842 mm")))
sketch14.addConstraint(Sketcher.Constraint("DistanceY", 7, 3, -1, 1, Q("39.46403 mm")))
sketch14.addConstraint(Sketcher.Constraint("DistanceX", 8, 3, -1, 1, Q("45.24167 mm")))
sketch14.addConstraint(Sketcher.Constraint("DistanceY", 5, 3, -1, 1, Q("72.401924 mm")))
sketch14.addConstraint(Sketcher.Constraint("DistanceX", -1, 1, 6, 3, Q("118.781706 mm")))
sketch14.addConstraint(Sketcher.Constraint("DistanceY", 6, 3, -1, 1, Q("34.907457 mm")))
sketch14.setExpression("Constraints[11]", "Params.sketch14_diameter")
pocket11 = body.newObject("PartDesign::Pocket", "Pocket010")
pocket11.Profile = sketch14
pocket11.setExpression("Length", "Params.pocket11_length")

sketch15 = body.newObject("Sketcher::SketchObject", "Sketch014")
sketch15.AttachmentSupport = (doc.getObject("XY_Plane"), [""])
sketch15.MapMode = "FlatFace"
sketch15.AttachmentOffset = App.Placement(Vector(0, 0, 6), App.Rotation())
sketch15.addGeometry(Part.Circle(Vector(-75, 109.5, 0), Vector(0, 0, 1), 1.5), False)
sketch15.addGeometry(Part.Circle(Vector(5, 109.5, 0), Vector(0, 0, 1), 1.5), False)
sketch15.addGeometry(Part.Circle(Vector(85, 109.5, 0), Vector(0, 0, 1), 1.5), False)
sketch15.addGeometry(Part.Circle(Vector(132, 60, 0), Vector(0, 0, 1), 1.5), False)
sketch15.addGeometry(Part.Circle(Vector(132, 9, 0), Vector(0, 0, 1), 1.5), False)
sketch15.addGeometry(Part.Circle(Vector(118.8, -34.9, 0), Vector(0, 0, 1), 1.5), False)
sketch15.addGeometry(Part.Circle(Vector(66.7, -39.5, 0), Vector(0, 0, 1), 1.5), False)
sketch15.addGeometry(Part.Circle(Vector(-1.9, -72.4, 0), Vector(0, 0, 1), 1.5), False)
sketch15.addGeometry(Part.Circle(Vector(-45.2, -97.4, 0), Vector(0, 0, 1), 1.5), False)
sketch15.addConstraint(Sketcher.Constraint("Equal", 0, 1))
sketch15.addConstraint(Sketcher.Constraint("Equal", 1, 2))
sketch15.addConstraint(Sketcher.Constraint("Equal", 2, 3))
sketch15.addConstraint(Sketcher.Constraint("Equal", 3, 4))
sketch15.addConstraint(Sketcher.Constraint("Equal", 4, 5))
sketch15.addConstraint(Sketcher.Constraint("Equal", 5, 6))
sketch15.addConstraint(Sketcher.Constraint("Equal", 6, 7))
sketch15.addConstraint(Sketcher.Constraint("Equal", 7, 8))
sketch15.addConstraint(Sketcher.Constraint("Horizontal", 0, 3, 1, 3))
sketch15.addConstraint(Sketcher.Constraint("Horizontal", 1, 3, 2, 3))
sketch15.addConstraint(Sketcher.Constraint("Vertical", 3, 3, 4, 3))
sketch15.addConstraint(Sketcher.Constraint("Diameter", 0, Q("3 mm")))
sketch15.addConstraint(Sketcher.Constraint("DistanceX", 0, 3, -1, 1, Q("75 mm")))
sketch15.addConstraint(Sketcher.Constraint("DistanceX", -1, 1, 1, 3, Q("5 mm")))
sketch15.addConstraint(Sketcher.Constraint("DistanceX", -1, 1, 2, 3, Q("85 mm")))
sketch15.addConstraint(Sketcher.Constraint("DistanceX", -1, 1, 3, 3, Q("132 mm")))
sketch15.addConstraint(Sketcher.Constraint("DistanceY", -1, 1, 3, 3, Q("60 mm")))
sketch15.addConstraint(Sketcher.Constraint("DistanceY", -1, 1, 4, 3, Q("9 mm")))
sketch15.addConstraint(Sketcher.Constraint("DistanceY", 8, 3, 7, 3, Q("25 mm")))
sketch15.addConstraint(Sketcher.Constraint("DistanceY", -1, 1, 0, 3, Q("109.5 mm")))
sketch15.addConstraint(Sketcher.Constraint("DistanceX", 7, 3, -1, 1, Q("1.9404 mm")))
sketch15.addConstraint(Sketcher.Constraint("DistanceX", -1, 1, 6, 3, Q("66.699842 mm")))
sketch15.addConstraint(Sketcher.Constraint("DistanceY", 6, 3, -1, 1, Q("39.46403 mm")))
sketch15.addConstraint(Sketcher.Constraint("DistanceX", 8, 3, -1, 1, Q("45.24167 mm")))
sketch15.addConstraint(Sketcher.Constraint("DistanceX", -1, 1, 5, 3, Q("118.781706 mm")))
sketch15.addConstraint(Sketcher.Constraint("DistanceY", 5, 3, -1, 1, Q("34.907457 mm")))
sketch15.addConstraint(Sketcher.Constraint("DistanceY", 7, 3, -1, 1, Q("72.401924 mm")))
sketch15.setExpression("Constraints[11]", "Params.sketch15_diameter")
pocket12 = body.newObject("PartDesign::Pocket", "Pocket011")
pocket12.Profile = sketch15
pocket12.setExpression("Length", "Params.pocket12_length")

doc.recompute()
